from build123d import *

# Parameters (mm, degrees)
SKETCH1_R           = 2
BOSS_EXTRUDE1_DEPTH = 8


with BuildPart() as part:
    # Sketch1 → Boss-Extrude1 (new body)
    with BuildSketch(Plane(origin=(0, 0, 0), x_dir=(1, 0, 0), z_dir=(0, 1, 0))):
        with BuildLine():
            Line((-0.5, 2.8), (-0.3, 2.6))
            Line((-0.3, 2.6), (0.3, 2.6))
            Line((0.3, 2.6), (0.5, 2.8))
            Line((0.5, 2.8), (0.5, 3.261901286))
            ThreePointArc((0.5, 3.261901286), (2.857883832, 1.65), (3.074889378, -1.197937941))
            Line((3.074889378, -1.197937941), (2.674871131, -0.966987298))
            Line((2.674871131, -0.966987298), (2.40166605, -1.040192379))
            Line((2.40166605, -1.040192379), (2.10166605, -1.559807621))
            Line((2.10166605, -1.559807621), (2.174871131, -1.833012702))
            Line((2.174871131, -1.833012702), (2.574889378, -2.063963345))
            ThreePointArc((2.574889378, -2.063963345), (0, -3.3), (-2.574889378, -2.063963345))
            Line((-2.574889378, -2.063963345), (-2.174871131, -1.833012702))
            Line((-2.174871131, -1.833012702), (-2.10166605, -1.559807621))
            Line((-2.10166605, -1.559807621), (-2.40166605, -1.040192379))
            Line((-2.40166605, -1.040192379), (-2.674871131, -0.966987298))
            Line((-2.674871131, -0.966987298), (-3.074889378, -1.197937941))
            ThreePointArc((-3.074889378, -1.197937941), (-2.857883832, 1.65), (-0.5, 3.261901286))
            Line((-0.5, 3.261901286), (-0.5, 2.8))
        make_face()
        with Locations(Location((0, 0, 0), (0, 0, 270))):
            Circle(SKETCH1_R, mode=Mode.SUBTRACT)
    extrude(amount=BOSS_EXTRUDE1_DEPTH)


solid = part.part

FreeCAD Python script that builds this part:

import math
import FreeCAD as App
import Part
import Sketcher
from FreeCAD import Vector
Q = App.Units.Quantity

doc = App.newDocument("Part")
body = doc.addObject("PartDesign::Body", "Body")

# Sketch on XZ plane
sketch1 = body.newObject("Sketcher::SketchObject", "Sketch")
sketch1.AttachmentSupport = (doc.getObject("XZ_Plane"), [""])
sketch1.MapMode = "FlatFace"
sketch1.addGeometry([
    Part.LineSegment(Vector(-0.3, -2.6, 0), Vector(-0.5, -2.8, 0)),  # 0
    Part.LineSegment(Vector(-0.5, -2.8, 0), Vector(-0.5, -3.26, 0)),  # 1
    Part.ArcOfCircle(Part.Circle(Vector(0, 0, 0), Vector(0, 0, 1), 3.3), math.radians(159), math.radians(261)),  # 2
    Part.LineSegment(Vector(-3.07, 1.2, 0), Vector(-2.67, 0.97, 0)),  # 3
    Part.LineSegment(Vector(-2.67, 0.97, 0), Vector(-2.4, 1.04, 0)),  # 4
    Part.LineSegment(Vector(-2.4, 1.04, 0), Vector(-2.1, 1.56, 0)),  # 5
    Part.LineSegment(Vector(-2.1, 1.56, 0), Vector(-2.17, 1.83, 0)),  # 6
    Part.LineSegment(Vector(-2.17, 1.83, 0), Vector(-2.57, 2.06, 0)),  # 7
    Part.ArcOfCircle(Part.Circle(Vector(0, 0, 0), Vector(0, 0, 1), 3.3), math.radians(39), math.radians(141)),  # 8
    Part.LineSegment(Vector(2.57, 2.06, 0), Vector(2.17, 1.83, 0)),  # 9
    Part.LineSegment(Vector(2.17, 1.83, 0), Vector(2.1, 1.56, 0)),  # 10
    Part.LineSegment(Vector(2.1, 1.56, 0), Vector(2.4, 1.04, 0)),  # 11
    Part.LineSegment(Vector(2.4, 1.04, 0), Vector(2.67, 0.97, 0)),  # 12
    Part.LineSegment(Vector(2.67, 0.97, 0), Vector(3.07, 1.2, 0)),  # 13
    Part.ArcOfCircle(Part.Circle(Vector(0, 0, 0), Vector(0, 0, 1), 3.3), math.radians(-81), math.radians(21)),  # 14
    Part.LineSegment(Vector(0.5, -3.26, 0), Vector(0.5, -2.8, 0)),  # 15
    Part.LineSegment(Vector(0.5, -2.8, 0), Vector(0.3, -2.6, 0)),  # 16
    Part.LineSegment(Vector(0.3, -2.6, 0), Vector(-0.3, -2.6, 0)),  # 17
    Part.Circle(Vector(0, 0, 0), Vector(0, 0, 1), 2),  # 18
], False)
sketch1.addConstraint([
    Sketcher.Constraint("Coincident", 0, 2, 1, 1),
    Sketcher.Constraint("Coincident", 1, 2, 2, 2),
    Sketcher.Constraint("Coincident", 2, 1, 3, 1),
    Sketcher.Constraint("Coincident", 3, 2, 4, 1),
    Sketcher.Constraint("Coincident", 4, 2, 5, 1),
    Sketcher.Constraint("Coincident", 5, 2, 6, 1),
    Sketcher.Constraint("Coincident", 6, 2, 7, 1),
    Sketcher.Constraint("Coincident", 7, 2, 8, 2),
    Sketcher.Constraint("Coincident", 8, 1, 9, 1),
    Sketcher.Constraint("Coincident", 9, 2, 10, 1),
    Sketcher.Constraint("Coincident", 10, 2, 11, 1),
    Sketcher.Constraint("Coincident", 11, 2, 12, 1),
    Sketcher.Constraint("Coincident", 12, 2, 13, 1),
    Sketcher.Constraint("Coincident", 13, 2, 14, 2),
    Sketcher.Constraint("Coincident", 14, 1, 15, 1),
    Sketcher.Constraint("Coincident", 15, 2, 16, 1),
    Sketcher.Constraint("Coincident", 16, 2, 17, 1),
    Sketcher.Constraint("Coincident", 17, 2, 0, 1),
    Sketcher.Constraint("Vertical", 1),
    Sketcher.Constraint("Vertical", 15),
    Sketcher.Constraint("Horizontal", 17),
    Sketcher.Constraint("Coincident", 2, 3, -1, 1),
    Sketcher.Constraint("Coincident", 8, 3, -1, 1),
    Sketcher.Constraint("Coincident", 14, 3, -1, 1),
    Sketcher.Constraint("Coincident", 18, 3, -1, 1),
    Sketcher.Constraint("Equal", 2, 8),
    Sketcher.Constraint("Equal", 8, 14),
    Sketcher.Constraint("Symmetric", 6, 2, 9, 2, -2),
    Sketcher.Constraint("Symmetric", 5, 2, 10, 2, -2),
    Sketcher.Constraint("Symmetric", 4, 2, 11, 2, -2),
    Sketcher.Constraint("Symmetric", 3, 2, 12, 2, -2),
    Sketcher.Constraint("Symmetric", 0, 2, 15, 2, -2),
    Sketcher.Constraint("Perpendicular", 3, 5),
    Sketcher.Constraint("Perpendicular", 4, 6),
    Sketcher.Constraint("Perpendicular", 5, 7),
    Sketcher.Constraint("Perpendicular", 9, 11),
    Sketcher.Constraint("Perpendicular", 11, 13),
    Sketcher.Constraint("Perpendicular", 0, 16),
    Sketcher.Constraint("Equal", 0, 4),
    Sketcher.Constraint("Equal", 4, 6),
    Sketcher.Constraint("Equal", 3, 7),
    Sketcher.Constraint("Equal", 12, 16),
    Sketcher.Constraint("Diameter", 18, 4.0),
    Sketcher.Constraint("Radius", 2, 3.3),
    Sketcher.Constraint("Angle", 3, Q("-30 deg")),
    Sketcher.Constraint("Angle", 4, Q("15 deg")),
    Sketcher.Constraint("DistanceX", 17, 2, 17, 1, 0.6),
    Sketcher.Constraint("DistanceX", 1, 2, 14, 1, 1.0),
    Sketcher.Constraint("Distance", 5, 0.6),
    Sketcher.Constraint("DistanceY", 0, 2, -1, 1, 2.8),
    Sketcher.Constraint("Distance", 3, 0.461901),
])
pad1 = body.newObject("PartDesign::Pad", "Pad")
pad1.Profile = sketch1
pad1.Length = 8
pad1.Reversed = True

doc.recompute()
